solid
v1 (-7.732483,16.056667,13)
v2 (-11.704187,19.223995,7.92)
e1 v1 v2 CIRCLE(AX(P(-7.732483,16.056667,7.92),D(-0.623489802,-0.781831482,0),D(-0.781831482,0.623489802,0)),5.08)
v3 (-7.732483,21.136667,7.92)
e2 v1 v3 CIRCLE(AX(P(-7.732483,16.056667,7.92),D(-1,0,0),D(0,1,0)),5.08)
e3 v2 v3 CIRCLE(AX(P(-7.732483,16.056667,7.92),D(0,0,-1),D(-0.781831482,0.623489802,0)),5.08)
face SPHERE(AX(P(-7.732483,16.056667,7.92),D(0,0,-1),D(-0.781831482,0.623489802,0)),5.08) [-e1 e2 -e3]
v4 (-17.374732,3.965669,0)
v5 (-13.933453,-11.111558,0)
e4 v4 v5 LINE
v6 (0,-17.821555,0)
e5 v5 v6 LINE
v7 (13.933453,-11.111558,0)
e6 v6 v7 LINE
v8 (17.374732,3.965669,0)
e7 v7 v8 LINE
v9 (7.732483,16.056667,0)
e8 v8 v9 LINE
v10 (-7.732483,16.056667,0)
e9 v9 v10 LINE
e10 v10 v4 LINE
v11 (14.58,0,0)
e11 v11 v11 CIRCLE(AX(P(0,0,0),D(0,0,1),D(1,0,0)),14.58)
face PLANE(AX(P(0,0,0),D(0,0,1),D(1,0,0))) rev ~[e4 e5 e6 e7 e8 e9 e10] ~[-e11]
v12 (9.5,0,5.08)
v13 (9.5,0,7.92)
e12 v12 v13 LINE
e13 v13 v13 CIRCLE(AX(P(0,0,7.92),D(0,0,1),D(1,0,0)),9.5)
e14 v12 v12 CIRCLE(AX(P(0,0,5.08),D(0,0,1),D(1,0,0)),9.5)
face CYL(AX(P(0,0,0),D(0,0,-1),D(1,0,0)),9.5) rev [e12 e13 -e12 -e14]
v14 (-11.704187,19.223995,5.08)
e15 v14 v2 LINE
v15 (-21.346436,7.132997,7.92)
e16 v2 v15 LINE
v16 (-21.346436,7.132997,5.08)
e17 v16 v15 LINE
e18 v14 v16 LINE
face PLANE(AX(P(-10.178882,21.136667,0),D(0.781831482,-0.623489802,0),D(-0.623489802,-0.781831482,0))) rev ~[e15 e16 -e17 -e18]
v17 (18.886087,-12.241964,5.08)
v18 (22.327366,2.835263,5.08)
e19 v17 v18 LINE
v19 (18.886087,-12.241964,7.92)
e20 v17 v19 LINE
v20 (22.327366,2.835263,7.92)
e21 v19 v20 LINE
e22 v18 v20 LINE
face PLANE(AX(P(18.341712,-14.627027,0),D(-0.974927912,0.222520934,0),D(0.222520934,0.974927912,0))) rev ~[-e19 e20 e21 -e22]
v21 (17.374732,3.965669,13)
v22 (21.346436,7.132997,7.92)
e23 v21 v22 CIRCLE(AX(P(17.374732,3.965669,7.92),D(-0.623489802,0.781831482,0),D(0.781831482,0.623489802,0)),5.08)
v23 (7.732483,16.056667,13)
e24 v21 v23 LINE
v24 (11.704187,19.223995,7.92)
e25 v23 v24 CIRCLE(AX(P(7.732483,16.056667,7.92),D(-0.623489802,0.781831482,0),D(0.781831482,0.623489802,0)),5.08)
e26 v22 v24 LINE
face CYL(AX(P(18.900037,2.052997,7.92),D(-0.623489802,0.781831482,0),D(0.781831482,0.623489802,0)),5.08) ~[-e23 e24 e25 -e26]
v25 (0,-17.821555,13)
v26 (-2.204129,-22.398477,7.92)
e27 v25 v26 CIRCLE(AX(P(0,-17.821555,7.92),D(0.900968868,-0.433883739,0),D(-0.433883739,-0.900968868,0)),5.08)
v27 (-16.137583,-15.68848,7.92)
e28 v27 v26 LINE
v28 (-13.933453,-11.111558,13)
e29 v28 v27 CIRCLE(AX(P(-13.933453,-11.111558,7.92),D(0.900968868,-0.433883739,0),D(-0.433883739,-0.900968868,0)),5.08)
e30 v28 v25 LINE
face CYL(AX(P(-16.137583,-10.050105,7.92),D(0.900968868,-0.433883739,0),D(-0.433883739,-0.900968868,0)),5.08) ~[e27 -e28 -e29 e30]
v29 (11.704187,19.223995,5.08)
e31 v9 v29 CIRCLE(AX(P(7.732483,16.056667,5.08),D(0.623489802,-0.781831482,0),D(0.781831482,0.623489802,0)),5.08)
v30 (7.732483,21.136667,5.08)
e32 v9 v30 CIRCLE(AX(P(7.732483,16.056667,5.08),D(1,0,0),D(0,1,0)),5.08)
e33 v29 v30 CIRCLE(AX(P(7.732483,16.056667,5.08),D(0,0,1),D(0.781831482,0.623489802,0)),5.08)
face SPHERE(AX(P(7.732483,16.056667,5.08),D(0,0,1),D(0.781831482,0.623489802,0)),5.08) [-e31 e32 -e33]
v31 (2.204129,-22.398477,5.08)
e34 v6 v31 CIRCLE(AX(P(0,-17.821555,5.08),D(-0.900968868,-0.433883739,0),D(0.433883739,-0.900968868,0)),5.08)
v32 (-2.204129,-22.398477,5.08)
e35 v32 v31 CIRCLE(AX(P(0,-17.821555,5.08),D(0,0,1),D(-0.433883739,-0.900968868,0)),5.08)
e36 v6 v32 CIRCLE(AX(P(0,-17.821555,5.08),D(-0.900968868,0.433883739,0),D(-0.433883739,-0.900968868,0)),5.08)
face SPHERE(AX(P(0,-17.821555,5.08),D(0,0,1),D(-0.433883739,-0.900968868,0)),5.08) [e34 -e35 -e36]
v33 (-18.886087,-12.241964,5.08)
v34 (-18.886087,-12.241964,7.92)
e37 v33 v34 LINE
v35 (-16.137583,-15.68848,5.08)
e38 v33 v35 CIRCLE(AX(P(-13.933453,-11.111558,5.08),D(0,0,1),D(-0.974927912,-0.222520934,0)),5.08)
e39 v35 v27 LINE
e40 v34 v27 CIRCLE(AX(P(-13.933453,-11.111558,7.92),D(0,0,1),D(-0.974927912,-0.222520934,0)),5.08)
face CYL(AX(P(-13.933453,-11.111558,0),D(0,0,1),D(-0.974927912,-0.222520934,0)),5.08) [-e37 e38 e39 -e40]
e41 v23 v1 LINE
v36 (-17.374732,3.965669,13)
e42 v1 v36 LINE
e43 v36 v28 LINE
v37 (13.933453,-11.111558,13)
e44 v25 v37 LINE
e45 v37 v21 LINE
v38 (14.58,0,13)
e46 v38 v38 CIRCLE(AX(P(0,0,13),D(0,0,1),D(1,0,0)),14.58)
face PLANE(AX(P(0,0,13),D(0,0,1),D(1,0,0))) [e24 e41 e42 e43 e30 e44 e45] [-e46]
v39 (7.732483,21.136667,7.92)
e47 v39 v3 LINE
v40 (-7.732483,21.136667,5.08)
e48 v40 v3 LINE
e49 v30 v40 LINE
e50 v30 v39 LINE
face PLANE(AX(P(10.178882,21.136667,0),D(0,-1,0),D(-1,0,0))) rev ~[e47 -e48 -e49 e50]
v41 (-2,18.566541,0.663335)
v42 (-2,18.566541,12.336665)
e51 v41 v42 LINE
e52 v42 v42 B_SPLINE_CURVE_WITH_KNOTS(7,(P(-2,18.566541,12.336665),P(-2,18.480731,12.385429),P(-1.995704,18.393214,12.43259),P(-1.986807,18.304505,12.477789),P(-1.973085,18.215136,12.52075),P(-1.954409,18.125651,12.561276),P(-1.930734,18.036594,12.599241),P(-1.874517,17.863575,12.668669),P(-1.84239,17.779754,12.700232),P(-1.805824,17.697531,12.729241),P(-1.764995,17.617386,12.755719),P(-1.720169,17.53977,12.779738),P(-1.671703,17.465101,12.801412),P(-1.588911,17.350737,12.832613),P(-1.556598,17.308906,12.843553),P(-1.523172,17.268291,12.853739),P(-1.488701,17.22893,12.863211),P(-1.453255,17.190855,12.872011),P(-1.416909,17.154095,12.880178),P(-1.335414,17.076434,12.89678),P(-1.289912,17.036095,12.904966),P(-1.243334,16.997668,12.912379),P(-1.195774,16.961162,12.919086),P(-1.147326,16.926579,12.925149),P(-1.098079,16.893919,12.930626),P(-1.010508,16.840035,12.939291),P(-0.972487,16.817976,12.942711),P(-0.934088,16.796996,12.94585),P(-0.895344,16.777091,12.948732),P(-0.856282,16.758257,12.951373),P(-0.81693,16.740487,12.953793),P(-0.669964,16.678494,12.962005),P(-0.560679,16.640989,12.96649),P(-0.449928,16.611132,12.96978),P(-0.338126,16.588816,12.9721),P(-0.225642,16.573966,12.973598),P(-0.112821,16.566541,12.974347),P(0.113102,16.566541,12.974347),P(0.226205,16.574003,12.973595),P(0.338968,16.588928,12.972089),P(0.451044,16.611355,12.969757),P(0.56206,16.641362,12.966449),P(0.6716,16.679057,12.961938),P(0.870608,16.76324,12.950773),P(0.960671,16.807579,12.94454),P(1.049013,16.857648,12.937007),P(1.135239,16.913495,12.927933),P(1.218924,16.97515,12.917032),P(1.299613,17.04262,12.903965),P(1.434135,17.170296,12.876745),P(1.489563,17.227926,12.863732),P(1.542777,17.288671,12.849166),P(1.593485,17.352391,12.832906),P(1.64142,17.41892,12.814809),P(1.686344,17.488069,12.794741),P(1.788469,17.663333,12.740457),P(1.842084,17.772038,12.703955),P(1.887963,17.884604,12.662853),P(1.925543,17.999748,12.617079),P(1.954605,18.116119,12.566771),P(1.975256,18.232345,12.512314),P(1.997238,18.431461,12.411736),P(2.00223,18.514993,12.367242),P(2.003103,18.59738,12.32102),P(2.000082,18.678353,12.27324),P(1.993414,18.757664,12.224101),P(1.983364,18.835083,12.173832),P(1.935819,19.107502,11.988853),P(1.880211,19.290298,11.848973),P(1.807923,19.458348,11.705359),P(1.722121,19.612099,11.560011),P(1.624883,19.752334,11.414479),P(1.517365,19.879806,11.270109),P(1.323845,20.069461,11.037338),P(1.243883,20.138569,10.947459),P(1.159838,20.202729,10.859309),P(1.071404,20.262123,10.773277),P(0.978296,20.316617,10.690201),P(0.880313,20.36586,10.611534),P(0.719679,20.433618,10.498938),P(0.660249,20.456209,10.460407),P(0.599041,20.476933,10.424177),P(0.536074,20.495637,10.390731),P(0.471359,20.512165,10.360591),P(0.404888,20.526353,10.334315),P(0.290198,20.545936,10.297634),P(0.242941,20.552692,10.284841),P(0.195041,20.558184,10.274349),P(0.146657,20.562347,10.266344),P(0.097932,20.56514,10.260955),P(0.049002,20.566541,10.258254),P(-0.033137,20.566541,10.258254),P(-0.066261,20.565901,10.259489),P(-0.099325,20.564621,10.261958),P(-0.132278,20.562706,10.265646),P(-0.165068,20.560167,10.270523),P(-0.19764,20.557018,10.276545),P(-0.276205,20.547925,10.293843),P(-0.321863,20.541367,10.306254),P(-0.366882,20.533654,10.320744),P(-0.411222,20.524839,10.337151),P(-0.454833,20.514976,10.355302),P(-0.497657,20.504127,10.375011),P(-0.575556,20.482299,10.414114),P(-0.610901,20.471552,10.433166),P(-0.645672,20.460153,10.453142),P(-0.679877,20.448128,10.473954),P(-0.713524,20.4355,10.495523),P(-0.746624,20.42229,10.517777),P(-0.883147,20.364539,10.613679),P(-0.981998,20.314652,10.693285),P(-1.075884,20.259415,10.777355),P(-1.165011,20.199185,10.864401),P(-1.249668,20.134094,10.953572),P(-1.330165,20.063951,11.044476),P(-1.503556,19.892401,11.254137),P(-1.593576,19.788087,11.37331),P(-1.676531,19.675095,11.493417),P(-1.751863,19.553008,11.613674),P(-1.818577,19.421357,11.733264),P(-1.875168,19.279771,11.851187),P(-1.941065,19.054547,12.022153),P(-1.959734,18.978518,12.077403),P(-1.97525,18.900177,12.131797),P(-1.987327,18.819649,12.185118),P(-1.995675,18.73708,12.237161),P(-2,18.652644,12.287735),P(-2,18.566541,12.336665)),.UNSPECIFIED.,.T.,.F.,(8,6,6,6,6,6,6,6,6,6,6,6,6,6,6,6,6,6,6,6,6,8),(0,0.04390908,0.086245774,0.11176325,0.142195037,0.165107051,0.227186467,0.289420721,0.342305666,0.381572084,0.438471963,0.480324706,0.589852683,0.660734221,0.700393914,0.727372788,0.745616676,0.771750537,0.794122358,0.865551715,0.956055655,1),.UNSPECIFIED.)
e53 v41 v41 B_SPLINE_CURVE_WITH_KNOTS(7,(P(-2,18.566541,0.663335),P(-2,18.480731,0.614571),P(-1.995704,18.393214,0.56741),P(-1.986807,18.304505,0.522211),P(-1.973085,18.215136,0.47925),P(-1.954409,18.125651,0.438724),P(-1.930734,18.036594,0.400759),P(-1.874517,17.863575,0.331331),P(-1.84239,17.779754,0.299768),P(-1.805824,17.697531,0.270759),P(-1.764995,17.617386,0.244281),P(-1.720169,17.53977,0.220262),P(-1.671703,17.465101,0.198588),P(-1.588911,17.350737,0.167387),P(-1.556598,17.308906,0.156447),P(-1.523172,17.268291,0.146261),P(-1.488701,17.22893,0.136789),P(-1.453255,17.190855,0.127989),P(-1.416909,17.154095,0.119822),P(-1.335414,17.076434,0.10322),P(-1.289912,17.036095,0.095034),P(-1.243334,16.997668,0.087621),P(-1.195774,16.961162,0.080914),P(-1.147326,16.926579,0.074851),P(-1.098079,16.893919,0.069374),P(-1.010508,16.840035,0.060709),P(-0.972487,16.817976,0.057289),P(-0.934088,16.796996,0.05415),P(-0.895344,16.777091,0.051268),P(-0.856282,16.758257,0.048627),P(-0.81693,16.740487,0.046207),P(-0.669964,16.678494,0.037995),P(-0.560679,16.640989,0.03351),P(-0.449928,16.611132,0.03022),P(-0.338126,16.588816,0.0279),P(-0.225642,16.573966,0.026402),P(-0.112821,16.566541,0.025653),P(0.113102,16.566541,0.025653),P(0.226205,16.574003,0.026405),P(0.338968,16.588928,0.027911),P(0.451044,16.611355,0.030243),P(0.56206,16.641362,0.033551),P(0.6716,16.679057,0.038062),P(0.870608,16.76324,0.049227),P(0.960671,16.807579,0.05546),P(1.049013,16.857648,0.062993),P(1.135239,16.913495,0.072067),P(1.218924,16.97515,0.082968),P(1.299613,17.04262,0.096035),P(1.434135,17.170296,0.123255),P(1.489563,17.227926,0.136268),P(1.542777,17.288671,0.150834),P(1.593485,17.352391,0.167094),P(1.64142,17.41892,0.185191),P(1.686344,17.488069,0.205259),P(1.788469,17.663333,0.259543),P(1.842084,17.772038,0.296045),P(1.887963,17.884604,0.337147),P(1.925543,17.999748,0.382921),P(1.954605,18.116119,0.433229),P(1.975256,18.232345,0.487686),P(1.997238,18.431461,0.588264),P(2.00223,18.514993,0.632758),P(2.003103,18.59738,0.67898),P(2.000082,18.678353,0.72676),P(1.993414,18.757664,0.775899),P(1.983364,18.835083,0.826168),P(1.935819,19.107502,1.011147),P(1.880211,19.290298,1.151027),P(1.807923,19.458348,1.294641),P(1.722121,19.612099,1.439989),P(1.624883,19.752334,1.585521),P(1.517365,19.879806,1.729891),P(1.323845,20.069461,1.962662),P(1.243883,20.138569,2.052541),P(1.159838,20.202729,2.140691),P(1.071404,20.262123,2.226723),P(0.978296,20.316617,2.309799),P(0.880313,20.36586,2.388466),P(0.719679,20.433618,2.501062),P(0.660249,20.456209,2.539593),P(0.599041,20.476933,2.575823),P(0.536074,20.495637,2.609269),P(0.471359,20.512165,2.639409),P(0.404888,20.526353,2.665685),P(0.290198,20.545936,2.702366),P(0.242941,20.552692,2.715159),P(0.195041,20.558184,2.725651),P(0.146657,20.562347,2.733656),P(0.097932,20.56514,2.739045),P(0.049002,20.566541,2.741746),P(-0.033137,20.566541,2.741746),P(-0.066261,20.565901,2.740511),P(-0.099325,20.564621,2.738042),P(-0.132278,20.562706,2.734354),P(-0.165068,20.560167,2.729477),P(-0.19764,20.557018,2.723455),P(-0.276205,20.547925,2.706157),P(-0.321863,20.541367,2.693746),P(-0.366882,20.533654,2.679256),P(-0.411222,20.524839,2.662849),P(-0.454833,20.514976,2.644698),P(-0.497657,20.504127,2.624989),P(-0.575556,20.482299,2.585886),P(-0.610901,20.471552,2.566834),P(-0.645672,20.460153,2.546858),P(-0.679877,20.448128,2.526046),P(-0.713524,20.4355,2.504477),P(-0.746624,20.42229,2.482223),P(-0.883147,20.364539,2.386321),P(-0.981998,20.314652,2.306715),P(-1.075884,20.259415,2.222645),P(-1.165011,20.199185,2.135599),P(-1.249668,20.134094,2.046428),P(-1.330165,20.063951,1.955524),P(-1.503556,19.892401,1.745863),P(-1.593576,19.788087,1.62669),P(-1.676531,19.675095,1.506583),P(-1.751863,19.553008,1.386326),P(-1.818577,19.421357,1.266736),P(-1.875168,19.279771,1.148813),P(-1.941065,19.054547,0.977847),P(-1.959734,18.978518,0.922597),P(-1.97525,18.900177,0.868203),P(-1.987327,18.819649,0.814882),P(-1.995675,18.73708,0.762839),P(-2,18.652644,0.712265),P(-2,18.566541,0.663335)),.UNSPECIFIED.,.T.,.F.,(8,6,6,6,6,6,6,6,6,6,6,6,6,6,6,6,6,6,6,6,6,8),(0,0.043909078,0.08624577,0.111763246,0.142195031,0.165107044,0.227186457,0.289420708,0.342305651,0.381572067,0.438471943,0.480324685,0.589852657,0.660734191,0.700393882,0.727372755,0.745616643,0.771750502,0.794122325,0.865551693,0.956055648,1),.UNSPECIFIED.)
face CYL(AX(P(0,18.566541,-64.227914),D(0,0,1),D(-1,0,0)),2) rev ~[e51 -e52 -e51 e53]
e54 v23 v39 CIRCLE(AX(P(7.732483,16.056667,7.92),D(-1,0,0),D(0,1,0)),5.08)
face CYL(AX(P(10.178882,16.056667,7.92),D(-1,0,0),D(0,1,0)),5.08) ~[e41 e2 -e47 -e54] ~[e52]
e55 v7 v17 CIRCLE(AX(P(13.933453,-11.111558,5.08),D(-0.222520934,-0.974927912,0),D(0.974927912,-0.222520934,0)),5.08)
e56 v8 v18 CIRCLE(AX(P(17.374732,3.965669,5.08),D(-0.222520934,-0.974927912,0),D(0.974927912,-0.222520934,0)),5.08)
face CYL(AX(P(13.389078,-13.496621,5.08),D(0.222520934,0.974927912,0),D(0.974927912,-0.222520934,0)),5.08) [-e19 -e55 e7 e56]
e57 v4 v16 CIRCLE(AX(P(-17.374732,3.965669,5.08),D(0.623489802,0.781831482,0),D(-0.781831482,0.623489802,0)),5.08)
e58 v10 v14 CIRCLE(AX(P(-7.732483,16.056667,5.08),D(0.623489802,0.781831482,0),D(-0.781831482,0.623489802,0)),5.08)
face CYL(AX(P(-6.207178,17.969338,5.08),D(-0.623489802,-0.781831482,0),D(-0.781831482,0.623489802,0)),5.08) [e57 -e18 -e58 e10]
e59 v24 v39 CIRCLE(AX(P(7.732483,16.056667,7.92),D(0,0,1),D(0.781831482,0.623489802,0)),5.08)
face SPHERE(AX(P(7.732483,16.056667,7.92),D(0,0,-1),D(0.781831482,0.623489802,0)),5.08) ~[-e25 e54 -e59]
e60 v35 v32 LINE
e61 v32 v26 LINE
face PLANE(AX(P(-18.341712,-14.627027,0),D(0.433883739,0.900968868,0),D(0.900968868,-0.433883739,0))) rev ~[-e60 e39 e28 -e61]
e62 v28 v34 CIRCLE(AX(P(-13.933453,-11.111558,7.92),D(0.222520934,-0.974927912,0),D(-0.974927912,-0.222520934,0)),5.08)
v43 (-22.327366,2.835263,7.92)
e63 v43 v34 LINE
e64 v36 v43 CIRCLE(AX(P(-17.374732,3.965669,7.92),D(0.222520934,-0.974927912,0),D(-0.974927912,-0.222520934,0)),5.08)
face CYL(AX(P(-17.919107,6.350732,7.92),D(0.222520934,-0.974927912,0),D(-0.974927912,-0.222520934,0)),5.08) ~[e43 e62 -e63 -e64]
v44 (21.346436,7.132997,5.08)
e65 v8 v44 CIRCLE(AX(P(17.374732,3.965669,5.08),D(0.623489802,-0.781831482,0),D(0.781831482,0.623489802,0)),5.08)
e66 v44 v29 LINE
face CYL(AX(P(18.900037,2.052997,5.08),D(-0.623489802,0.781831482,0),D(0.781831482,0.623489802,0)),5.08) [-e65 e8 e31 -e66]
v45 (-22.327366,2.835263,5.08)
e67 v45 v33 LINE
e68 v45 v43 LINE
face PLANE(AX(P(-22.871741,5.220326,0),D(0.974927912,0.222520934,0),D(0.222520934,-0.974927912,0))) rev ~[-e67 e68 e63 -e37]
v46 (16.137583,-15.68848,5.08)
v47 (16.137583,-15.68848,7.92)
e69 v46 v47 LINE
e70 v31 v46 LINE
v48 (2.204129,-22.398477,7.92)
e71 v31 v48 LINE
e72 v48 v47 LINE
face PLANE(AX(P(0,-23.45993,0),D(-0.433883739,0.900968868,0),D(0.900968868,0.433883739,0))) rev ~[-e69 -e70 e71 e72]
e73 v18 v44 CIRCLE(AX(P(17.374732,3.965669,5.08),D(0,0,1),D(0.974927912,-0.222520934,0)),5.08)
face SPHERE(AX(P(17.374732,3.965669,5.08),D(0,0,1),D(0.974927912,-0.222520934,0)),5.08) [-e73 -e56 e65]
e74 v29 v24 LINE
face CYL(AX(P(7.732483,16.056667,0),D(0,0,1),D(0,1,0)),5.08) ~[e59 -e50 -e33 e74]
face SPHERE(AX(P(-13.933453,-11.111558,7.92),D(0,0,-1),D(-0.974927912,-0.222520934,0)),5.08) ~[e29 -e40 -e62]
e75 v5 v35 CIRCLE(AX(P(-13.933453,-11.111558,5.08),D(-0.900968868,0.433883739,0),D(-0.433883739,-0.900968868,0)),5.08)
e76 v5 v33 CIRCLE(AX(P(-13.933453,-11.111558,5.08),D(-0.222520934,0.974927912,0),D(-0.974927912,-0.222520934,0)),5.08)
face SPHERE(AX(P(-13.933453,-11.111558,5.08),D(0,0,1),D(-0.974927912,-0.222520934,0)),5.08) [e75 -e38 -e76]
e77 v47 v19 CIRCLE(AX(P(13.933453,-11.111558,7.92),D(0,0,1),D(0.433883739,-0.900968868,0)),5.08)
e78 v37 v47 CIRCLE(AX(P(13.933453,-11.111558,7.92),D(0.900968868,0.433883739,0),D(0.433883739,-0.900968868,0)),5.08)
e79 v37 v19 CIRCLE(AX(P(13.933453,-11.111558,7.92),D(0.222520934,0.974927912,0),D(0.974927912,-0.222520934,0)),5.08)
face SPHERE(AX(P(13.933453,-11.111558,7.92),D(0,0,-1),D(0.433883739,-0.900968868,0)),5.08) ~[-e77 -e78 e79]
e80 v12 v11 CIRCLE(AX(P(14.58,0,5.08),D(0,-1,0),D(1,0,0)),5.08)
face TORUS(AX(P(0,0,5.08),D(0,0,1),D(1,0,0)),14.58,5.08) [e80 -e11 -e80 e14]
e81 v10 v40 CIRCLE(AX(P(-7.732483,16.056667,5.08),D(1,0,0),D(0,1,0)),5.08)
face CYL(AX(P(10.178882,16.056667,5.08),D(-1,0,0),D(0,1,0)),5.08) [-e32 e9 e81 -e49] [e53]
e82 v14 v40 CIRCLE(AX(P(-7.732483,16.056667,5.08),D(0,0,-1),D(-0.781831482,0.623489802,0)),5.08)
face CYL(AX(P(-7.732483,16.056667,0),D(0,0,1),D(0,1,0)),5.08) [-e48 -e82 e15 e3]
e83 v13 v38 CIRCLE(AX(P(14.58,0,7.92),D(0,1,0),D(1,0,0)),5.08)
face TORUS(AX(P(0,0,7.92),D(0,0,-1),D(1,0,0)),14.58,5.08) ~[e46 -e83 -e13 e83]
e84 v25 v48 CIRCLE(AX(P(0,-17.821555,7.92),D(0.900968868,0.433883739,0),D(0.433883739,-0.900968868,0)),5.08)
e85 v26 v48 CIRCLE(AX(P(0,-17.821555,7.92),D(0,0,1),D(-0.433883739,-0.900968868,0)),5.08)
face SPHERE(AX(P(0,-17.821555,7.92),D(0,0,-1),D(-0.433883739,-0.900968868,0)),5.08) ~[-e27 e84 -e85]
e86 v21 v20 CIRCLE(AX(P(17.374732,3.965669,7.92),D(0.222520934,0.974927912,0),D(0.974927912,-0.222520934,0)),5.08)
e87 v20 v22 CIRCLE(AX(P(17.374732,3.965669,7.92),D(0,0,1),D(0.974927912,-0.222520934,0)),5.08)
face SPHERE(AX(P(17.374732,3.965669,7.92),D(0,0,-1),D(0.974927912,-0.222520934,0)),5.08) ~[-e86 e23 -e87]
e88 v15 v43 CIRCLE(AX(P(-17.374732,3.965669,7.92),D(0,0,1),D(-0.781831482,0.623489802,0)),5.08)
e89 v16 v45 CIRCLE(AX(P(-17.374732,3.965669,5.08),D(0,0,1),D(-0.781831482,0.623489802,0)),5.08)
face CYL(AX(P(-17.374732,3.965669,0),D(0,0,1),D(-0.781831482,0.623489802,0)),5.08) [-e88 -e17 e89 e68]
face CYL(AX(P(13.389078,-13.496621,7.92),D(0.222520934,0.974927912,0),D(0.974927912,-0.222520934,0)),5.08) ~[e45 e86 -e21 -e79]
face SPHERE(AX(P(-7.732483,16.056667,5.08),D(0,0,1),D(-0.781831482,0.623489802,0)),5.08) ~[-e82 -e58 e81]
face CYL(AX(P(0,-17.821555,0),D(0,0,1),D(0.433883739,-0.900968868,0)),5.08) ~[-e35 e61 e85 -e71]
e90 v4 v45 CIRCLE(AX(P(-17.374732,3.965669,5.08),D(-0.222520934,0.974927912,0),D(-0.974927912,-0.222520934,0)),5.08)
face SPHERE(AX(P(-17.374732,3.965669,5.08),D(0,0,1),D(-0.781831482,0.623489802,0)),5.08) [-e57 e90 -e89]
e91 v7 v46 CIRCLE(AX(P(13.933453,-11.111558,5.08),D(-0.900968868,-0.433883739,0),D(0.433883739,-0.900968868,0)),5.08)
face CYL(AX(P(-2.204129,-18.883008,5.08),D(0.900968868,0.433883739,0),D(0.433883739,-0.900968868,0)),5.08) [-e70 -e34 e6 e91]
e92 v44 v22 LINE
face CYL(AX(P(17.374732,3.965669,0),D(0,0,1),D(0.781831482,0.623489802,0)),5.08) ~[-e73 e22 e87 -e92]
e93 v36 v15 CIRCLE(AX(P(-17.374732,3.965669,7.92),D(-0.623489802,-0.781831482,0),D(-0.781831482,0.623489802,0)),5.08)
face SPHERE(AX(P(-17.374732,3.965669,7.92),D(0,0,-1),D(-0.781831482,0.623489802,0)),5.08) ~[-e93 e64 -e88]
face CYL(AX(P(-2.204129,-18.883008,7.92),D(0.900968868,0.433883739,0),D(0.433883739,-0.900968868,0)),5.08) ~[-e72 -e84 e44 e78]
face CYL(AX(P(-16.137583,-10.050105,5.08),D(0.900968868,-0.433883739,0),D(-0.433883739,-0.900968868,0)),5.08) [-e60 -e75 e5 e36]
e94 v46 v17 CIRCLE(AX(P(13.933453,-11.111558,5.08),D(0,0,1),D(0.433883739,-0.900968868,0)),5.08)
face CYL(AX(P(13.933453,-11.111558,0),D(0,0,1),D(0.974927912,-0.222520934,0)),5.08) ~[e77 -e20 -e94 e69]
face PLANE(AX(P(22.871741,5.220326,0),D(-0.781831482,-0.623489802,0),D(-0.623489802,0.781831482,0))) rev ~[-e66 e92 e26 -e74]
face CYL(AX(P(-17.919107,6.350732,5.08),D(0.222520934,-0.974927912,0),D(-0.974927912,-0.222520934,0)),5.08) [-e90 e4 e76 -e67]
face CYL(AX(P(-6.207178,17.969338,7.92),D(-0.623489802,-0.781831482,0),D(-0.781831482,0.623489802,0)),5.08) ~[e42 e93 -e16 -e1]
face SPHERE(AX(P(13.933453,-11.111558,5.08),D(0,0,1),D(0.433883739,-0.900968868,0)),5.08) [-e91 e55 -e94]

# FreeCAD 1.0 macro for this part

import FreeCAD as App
import Part
import Sketcher
from FreeCAD import Vector


def add_polygon(sketch, points):
    """Adds a closed chain of lines whose ends are joined by coincident constraints."""
    first, n = sketch.GeometryCount, len(points)
    for a, b in zip(points, points[1:] + points[:1]):
        sketch.addGeometry(Part.LineSegment(App.Vector(*a, 0), App.Vector(*b, 0)), False)
    for i in range(n):
        sketch.addConstraint(Sketcher.Constraint("Coincident", first + i, 2, first + (i + 1) % n, 1))

doc = App.newDocument("Part")
body = doc.addObject("PartDesign::Body", "Body")

# Sketch on XY plane
sketch1 = doc.addObject("Sketcher::SketchObject", "Sketch")
body.addObject(sketch1)
sketch1.AttachmentSupport = (doc.XY_Plane, [""])
sketch1.MapMode = "FlatFace"
add_polygon(sketch1, [(10, 21), (-10, 21), (-23, 5), (-18, -15), (0, -23), (18, -15), (23, 5)])  # lines 0-6
sketch1.addGeometry(Part.Circle(Vector(0, 0, 0), Vector(0, 0, 1), 10), False)  # 7
sketch1.addConstraint([
    Sketcher.Constraint("Horizontal", 0),
    Sketcher.Constraint("Coincident", 7, 3, -1, 1),
    Sketcher.Constraint("Symmetric", 2, 2, 4, 2, -2),
    Sketcher.Constraint("Symmetric", 1, 2, 5, 2, -2),
    Sketcher.Constraint("PointOnObject", 3, 2, -2),
    Sketcher.Constraint("Equal", 1, 2),
    Sketcher.Constraint("Equal", 2, 3),
    Sketcher.Constraint("Equal", 5, 6),
    Sketcher.Constraint("Diameter", 7, 19.0),
    Sketcher.Constraint("DistanceX", 0, 2, 0, 1, 20.357764),
    Sketcher.Constraint("DistanceX", 1, 2, -1, 1, 22.871741),
    Sketcher.Constraint("DistanceX", 2, 2, -1, 1, 18.341712),
    Sketcher.Constraint("DistanceY", 3, 2, -1, 1, 23.45993),
    Sketcher.Constraint("DistanceY", 1, 2, 0, 2, 15.916341),
])
pad1 = doc.addObject("PartDesign::Pad", "Pad")
body.addObject(pad1)
pad1.Profile = sketch1
pad1.Length = 13
doc.recompute()

fillet = doc.addObject("PartDesign::Fillet", "Fillet")
body.addObject(fillet)
fillet.Base = (pad1, ["Edge1"])
fillet.UseAllEdges = True
fillet.Radius = 5.08

# Sketch on XY plane
sketch2 = doc.addObject("Sketcher::SketchObject", "Sketch001")
body.addObject(sketch2)
sketch2.AttachmentSupport = (doc.XY_Plane, [""])
sketch2.MapMode = "FlatFace"
sketch2.addGeometry(Part.Circle(Vector(0, 18.6, 0), Vector(0, 0, 1), 2), False)
sketch2.addConstraint([
    Sketcher.Constraint("PointOnObject", 0, 3, -2),
    Sketcher.Constraint("Diameter", 0, 4.0),
    Sketcher.Constraint("DistanceY", -1, 1, 0, 3, 18.566541),
])
doc.recompute()
hole = doc.addObject("PartDesign::Hole", "Hole")
body.addObject(hole)
hole.Profile = sketch2
hole.ThreadType = "None"
hole.Diameter = 4
hole.DepthType = "ThroughAll"
hole.Reversed = True

doc.recompute()
